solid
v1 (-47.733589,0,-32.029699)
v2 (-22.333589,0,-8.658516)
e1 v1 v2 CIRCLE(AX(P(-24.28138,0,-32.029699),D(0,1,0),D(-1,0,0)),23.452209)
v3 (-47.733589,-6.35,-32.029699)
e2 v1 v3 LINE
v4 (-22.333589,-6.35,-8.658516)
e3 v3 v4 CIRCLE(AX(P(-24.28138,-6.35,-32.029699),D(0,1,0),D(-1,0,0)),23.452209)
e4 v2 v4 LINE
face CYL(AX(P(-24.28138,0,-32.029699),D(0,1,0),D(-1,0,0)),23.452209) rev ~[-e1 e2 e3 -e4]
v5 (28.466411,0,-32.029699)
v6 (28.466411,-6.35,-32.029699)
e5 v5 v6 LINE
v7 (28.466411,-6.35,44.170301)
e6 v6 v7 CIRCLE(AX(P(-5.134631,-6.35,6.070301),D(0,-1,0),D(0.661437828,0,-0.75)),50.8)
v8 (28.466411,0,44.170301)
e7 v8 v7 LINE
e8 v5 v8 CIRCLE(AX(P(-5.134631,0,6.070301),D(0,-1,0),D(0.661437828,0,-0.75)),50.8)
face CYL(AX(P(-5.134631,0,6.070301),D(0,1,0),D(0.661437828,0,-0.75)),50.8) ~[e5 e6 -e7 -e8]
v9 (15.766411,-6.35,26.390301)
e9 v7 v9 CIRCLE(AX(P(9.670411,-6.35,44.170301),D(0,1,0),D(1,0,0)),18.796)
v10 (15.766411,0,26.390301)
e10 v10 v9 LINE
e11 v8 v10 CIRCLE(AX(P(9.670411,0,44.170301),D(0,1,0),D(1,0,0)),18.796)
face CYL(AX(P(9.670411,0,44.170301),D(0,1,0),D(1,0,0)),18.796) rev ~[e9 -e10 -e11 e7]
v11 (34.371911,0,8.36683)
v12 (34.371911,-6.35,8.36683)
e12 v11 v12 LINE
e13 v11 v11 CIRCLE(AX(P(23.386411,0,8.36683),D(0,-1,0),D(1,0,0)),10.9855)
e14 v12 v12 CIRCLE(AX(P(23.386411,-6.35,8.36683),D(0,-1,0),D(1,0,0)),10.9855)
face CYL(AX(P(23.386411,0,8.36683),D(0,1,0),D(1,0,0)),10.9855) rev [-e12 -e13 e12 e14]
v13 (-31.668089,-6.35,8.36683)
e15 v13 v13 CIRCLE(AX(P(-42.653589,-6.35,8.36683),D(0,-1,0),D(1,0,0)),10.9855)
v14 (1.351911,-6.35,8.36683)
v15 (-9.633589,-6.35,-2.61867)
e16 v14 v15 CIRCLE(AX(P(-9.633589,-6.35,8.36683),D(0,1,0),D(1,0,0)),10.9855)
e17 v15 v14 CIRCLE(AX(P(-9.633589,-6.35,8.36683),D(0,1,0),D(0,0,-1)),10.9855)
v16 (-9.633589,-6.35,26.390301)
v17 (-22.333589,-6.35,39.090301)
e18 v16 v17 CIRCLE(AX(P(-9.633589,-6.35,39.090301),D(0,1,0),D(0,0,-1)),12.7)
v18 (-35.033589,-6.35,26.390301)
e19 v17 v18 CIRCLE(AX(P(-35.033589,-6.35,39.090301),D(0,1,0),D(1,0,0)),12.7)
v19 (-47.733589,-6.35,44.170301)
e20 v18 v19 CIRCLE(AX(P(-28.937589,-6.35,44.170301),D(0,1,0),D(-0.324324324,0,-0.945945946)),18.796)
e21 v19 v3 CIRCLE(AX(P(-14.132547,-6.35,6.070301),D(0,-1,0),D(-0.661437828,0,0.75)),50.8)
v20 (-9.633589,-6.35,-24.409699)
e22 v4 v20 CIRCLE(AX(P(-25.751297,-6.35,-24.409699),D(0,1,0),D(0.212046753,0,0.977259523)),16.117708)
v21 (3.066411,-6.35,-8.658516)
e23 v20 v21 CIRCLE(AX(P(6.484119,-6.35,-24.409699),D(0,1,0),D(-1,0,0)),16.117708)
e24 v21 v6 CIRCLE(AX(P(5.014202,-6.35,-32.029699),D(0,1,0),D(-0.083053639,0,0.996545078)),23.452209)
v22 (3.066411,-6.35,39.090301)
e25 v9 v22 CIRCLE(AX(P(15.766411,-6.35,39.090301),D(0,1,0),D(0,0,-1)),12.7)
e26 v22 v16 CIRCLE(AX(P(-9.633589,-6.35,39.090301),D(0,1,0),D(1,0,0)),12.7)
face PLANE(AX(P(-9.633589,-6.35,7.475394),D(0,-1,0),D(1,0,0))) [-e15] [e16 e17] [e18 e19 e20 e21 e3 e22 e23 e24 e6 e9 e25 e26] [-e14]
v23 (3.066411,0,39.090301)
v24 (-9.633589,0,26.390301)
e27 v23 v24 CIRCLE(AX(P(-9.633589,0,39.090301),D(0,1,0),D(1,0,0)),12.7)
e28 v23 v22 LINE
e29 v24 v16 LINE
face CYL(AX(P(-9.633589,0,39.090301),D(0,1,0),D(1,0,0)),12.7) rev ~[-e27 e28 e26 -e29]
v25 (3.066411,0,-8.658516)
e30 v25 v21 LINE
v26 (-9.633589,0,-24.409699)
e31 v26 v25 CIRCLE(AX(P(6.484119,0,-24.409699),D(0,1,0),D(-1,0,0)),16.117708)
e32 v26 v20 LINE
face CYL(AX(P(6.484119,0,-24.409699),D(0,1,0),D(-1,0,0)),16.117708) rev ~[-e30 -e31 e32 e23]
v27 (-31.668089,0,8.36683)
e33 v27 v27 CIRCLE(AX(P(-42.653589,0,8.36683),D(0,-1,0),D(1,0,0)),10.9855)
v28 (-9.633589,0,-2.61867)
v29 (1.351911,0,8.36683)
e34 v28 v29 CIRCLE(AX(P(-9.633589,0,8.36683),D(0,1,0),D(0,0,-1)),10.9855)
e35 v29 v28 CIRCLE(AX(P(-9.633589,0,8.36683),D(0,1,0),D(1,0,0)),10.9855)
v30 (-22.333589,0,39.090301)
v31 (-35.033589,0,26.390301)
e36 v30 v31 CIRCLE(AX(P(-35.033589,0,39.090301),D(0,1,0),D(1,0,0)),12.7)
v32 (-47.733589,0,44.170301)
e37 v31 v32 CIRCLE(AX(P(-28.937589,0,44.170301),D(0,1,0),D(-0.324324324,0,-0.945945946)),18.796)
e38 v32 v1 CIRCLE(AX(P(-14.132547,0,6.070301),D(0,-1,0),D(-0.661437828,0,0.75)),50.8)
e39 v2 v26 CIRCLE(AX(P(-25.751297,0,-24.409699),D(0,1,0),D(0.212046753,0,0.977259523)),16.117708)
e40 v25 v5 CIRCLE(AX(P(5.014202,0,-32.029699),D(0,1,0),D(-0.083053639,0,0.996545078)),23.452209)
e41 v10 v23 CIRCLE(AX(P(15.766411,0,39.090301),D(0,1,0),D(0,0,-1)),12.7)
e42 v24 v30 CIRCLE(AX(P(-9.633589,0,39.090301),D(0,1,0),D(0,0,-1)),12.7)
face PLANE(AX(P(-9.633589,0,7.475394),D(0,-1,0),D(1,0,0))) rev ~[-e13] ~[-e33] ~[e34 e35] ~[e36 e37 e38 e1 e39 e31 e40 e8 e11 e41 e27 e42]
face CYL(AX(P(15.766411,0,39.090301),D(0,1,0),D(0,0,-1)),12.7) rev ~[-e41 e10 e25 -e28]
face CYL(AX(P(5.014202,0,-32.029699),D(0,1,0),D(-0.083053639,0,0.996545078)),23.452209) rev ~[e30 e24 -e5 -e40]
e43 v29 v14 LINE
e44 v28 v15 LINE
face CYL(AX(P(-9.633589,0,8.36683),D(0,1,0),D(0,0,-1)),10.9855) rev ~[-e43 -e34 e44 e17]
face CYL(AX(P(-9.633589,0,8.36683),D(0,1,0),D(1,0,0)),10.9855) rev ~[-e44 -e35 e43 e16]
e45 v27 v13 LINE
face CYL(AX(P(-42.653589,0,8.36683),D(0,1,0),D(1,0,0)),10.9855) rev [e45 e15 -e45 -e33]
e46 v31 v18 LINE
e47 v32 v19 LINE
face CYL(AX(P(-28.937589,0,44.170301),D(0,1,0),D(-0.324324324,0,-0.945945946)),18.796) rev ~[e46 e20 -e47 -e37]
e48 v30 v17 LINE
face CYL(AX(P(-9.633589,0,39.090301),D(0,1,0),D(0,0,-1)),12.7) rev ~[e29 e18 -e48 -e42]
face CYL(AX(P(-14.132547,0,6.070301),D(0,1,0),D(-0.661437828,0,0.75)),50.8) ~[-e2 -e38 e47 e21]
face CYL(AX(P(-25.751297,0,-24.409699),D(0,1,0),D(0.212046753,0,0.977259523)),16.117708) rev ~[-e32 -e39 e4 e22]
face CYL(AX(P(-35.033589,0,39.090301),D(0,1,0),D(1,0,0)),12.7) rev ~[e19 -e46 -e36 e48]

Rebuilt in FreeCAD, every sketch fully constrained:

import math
import FreeCAD as App
import Part
import Sketcher
Q = App.Units.Quantity

doc = App.newDocument("Part")
body = doc.addObject("PartDesign::Body", "Body")

# Sketch on XZ plane
sketch1 = doc.addObject("Sketcher::SketchObject", "Sketch")
body.addObject(sketch1)
sketch1.AttachmentSupport = (doc.XZ_Plane, [""])
sketch1.MapMode = "FlatFace"
sketch1.addGeometry(Part.ArcOfCircle(Part.Circle(App.Vector(-35, 39, 0), App.Vector(0, 0, 1), 13), math.radians(-90), math.radians(0)), False)
sketch1.addGeometry(Part.ArcOfCircle(Part.Circle(App.Vector(-29, 44, 0), App.Vector(0, 0, 1), 19), math.radians(180), math.radians(251)), False)
sketch1.addGeometry(Part.ArcOfCircle(Part.Circle(App.Vector(-14, 6, 0), App.Vector(0, 0, 1), 51), math.radians(131), math.radians(229)), False)
sketch1.addGeometry(Part.ArcOfCircle(Part.Circle(App.Vector(-24, -32, 0), App.Vector(0, 0, 1), 23), math.radians(85), math.radians(180)), False)
sketch1.addGeometry(Part.ArcOfCircle(Part.Circle(App.Vector(-26, -24, 0), App.Vector(0, 0, 1), 16), math.radians(0), math.radians(78)), False)
sketch1.addGeometry(Part.ArcOfCircle(Part.Circle(App.Vector(6, -24, 0), App.Vector(0, 0, 1), 16), math.radians(102), math.radians(180)), False)
sketch1.addGeometry(Part.ArcOfCircle(Part.Circle(App.Vector(5, -32, 0), App.Vector(0, 0, 1), 23), math.radians(0), math.radians(95)), False)
sketch1.addGeometry(Part.ArcOfCircle(Part.Circle(App.Vector(-5, 6, 0), App.Vector(0, 0, 1), 51), math.radians(-49), math.radians(49)), False)
sketch1.addGeometry(Part.ArcOfCircle(Part.Circle(App.Vector(10, 44, 0), App.Vector(0, 0, 1), 19), math.radians(-71), math.radians(0)), False)
sketch1.addGeometry(Part.ArcOfCircle(Part.Circle(App.Vector(16, 39, 0), App.Vector(0, 0, 1), 13), math.radians(180), math.radians(270)), False)
sketch1.addGeometry(Part.ArcOfCircle(Part.Circle(App.Vector(-10, 39, 0), App.Vector(0, 0, 1), 13), math.radians(-90), math.radians(0)), False)
sketch1.addGeometry(Part.ArcOfCircle(Part.Circle(App.Vector(-10, 39, 0), App.Vector(0, 0, 1), 13), math.radians(180), math.radians(270)), False)
sketch1.addGeometry(Part.ArcOfCircle(Part.Circle(App.Vector(-10, 8, 0), App.Vector(0, 0, 1), 11), math.radians(-90), math.radians(0)), False)
sketch1.addGeometry(Part.ArcOfCircle(Part.Circle(App.Vector(-10, 8, 0), App.Vector(0, 0, 1), 11), math.radians(0), math.radians(270)), False)
sketch1.addGeometry(Part.Circle(App.Vector(-43, 8, 0), App.Vector(0, 0, 1), 11), False)
sketch1.addGeometry(Part.Circle(App.Vector(23, 8, 0), App.Vector(0, 0, 1), 11), False)
sketch1.addConstraint(Sketcher.Constraint("Coincident", 0, 1, 1, 2))
sketch1.addConstraint(Sketcher.Constraint("Coincident", 1, 1, 2, 1))
sketch1.addConstraint(Sketcher.Constraint("Coincident", 2, 2, 3, 2))
sketch1.addConstraint(Sketcher.Constraint("Coincident", 3, 1, 4, 2))
sketch1.addConstraint(Sketcher.Constraint("Tangent", 4, 1, 5, 2))
sketch1.addConstraint(Sketcher.Constraint("Coincident", 5, 1, 6, 2))
sketch1.addConstraint(Sketcher.Constraint("Coincident", 6, 1, 7, 1))
sketch1.addConstraint(Sketcher.Constraint("Coincident", 7, 2, 8, 2))
sketch1.addConstraint(Sketcher.Constraint("Coincident", 8, 1, 9, 2))
sketch1.addConstraint(Sketcher.Constraint("Tangent", 9, 1, 10, 2))
sketch1.addConstraint(Sketcher.Constraint("Tangent", 10, 1, 11, 2))
sketch1.addConstraint(Sketcher.Constraint("Tangent", 11, 1, 0, 2))
sketch1.addConstraint(Sketcher.Constraint("Tangent", 12, 1, 13, 2))
sketch1.addConstraint(Sketcher.Constraint("Coincident", 13, 1, 12, 2))
sketch1.addConstraint(Sketcher.Constraint("Equal", 4, 5))
sketch1.addConstraint(Sketcher.Constraint("Equal", 3, 6))
sketch1.addConstraint(Sketcher.Constraint("Equal", 2, 7))
sketch1.addConstraint(Sketcher.Constraint("Equal", 1, 8))
sketch1.addConstraint(Sketcher.Constraint("Equal", 0, 9))
sketch1.addConstraint(Sketcher.Constraint("Equal", 9, 10))
sketch1.addConstraint(Sketcher.Constraint("Equal", 10, 11))
sketch1.addConstraint(Sketcher.Constraint("Equal", 13, 14))
sketch1.addConstraint(Sketcher.Constraint("Equal", 14, 15))
sketch1.addConstraint(Sketcher.Constraint("Horizontal", 4, 3, 5, 3))
sketch1.addConstraint(Sketcher.Constraint("Horizontal", 3, 3, 6, 3))
sketch1.addConstraint(Sketcher.Constraint("Horizontal", 2, 3, 7, 3))
sketch1.addConstraint(Sketcher.Constraint("Horizontal", 1, 3, 8, 3))
sketch1.addConstraint(Sketcher.Constraint("Horizontal", 0, 3, 9, 3))
sketch1.addConstraint(Sketcher.Constraint("Horizontal", 9, 3, 10, 3))
sketch1.addConstraint(Sketcher.Constraint("Horizontal", 13, 3, 14, 3))
sketch1.addConstraint(Sketcher.Constraint("Horizontal", 14, 3, 15, 3))
sketch1.addConstraint(Sketcher.Constraint("Horizontal", 8, 3, 1, 1))
sketch1.addConstraint(Sketcher.Constraint("Horizontal", 6, 3, 2, 2))
sketch1.addConstraint(Sketcher.Constraint("Horizontal", 3, 1, 5, 1))
sketch1.addConstraint(Sketcher.Constraint("Horizontal", 2, 2, 6, 1))
sketch1.addConstraint(Sketcher.Constraint("Horizontal", 1, 1, 7, 2))
sketch1.addConstraint(Sketcher.Constraint("Horizontal", 15, 3, 13, 1))
sketch1.addConstraint(Sketcher.Constraint("Vertical", 11, 3, 12, 3))
sketch1.addConstraint(Sketcher.Constraint("Vertical", 1, 1, 2, 2))
sketch1.addConstraint(Sketcher.Constraint("Vertical", 13, 3, 4, 1))
sketch1.addConstraint(Sketcher.Constraint("Vertical", 9, 3, 8, 1))
sketch1.addConstraint(Sketcher.Constraint("Vertical", 5, 1, 9, 1))
sketch1.addConstraint(Sketcher.Constraint("Vertical", 4, 1, 10, 1))
sketch1.addConstraint(Sketcher.Constraint("Vertical", 10, 1, 12, 1))
sketch1.addConstraint(Sketcher.Constraint("Radius", 2, Q("2 in")))
sketch1.addConstraint(Sketcher.Constraint("Radius", 0, Q("0.5 in")))
sketch1.addConstraint(Sketcher.Constraint("Radius", 1, Q("0.74 in")))
sketch1.addConstraint(Sketcher.Constraint("Diameter", 14, Q("0.865 in")))
sketch1.addConstraint(Sketcher.Constraint("DistanceY", 3, 3, 1, 3, Q("3 in")))
sketch1.addConstraint(Sketcher.Constraint("DistanceX", 5, 1, 6, 1, Q("1 in")))
sketch1.addConstraint(Sketcher.Constraint("DistanceY", 3, 3, 4, 3, Q("0.3 in")))
sketch1.addConstraint(Sketcher.Constraint("DistanceX", 14, 3, 0, 3, Q("0.3 in")))
sketch1.addConstraint(Sketcher.Constraint("DistanceX", 9, 3, 15, 3, Q("0.3 in")))
sketch1.addConstraint(Sketcher.Constraint("Radius", 3, 23.452209))
sketch1.addConstraint(Sketcher.Constraint("DistanceY", -1, 1, 0, 3, 39.090301))
sketch1.addConstraint(Sketcher.Constraint("DistanceX", 0, 3, -1, 1, 35.033589))
sketch1.addConstraint(Sketcher.Constraint("DistanceY", -1, 1, 12, 3, 8.36683))
pad1 = doc.addObject("PartDesign::Pad", "Pad")
body.addObject(pad1)
pad1.Profile = sketch1
pad1.Length = Q("0.25 in")

doc.recompute()
